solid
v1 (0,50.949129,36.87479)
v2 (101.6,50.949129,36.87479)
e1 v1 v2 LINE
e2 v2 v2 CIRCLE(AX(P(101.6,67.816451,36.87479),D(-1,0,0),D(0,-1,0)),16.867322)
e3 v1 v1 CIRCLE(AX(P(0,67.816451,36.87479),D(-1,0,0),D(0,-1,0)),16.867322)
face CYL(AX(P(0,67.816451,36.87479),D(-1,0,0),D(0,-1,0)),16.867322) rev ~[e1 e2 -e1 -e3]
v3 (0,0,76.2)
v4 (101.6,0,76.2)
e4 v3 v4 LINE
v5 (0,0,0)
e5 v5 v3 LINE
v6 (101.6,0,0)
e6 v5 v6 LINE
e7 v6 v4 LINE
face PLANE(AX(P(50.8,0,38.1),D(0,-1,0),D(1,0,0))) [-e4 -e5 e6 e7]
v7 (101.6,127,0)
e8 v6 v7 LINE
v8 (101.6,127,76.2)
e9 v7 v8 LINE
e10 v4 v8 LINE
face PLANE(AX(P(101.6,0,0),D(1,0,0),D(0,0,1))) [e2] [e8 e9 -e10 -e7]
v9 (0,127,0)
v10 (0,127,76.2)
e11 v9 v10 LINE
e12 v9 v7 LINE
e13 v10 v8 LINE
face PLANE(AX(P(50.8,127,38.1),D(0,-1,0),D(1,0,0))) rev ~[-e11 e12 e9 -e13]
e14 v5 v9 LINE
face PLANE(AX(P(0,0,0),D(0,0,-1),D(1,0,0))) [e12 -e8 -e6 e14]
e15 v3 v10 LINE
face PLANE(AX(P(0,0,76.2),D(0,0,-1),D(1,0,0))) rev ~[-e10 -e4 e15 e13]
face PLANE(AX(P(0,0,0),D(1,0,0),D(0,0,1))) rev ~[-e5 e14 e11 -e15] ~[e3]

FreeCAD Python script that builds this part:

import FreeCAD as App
import Part
import Sketcher
Q = App.Units.Quantity


def add_polygon(sketch, points):
    """Adds a closed chain of lines whose ends are joined by coincident constraints."""
    first, n = sketch.GeometryCount, len(points)
    for a, b in zip(points, points[1:] + points[:1]):
        sketch.addGeometry(Part.LineSegment(App.Vector(*a, 0), App.Vector(*b, 0)), False)
    for i in range(n):
        sketch.addConstraint(Sketcher.Constraint("Coincident", first + i, 2, first + (i + 1) % n, 1))

doc = App.newDocument("Part")
body = doc.addObject("PartDesign::Body", "Body")

# Sketch on XZ plane
sketch1 = body.newObject("Sketcher::SketchObject", "Sketch")
sketch1.AttachmentSupport = (doc.getObject("XZ_Plane"), [""])
sketch1.MapMode = "FlatFace"
add_polygon(sketch1, [(0, 76), (0, 0), (102, 0), (102, 76)])  # lines 0-3
sketch1.addConstraint([
    Sketcher.Constraint("Vertical", 0),
    Sketcher.Constraint("Horizontal", 1),
    Sketcher.Constraint("Vertical", 2),
    Sketcher.Constraint("Horizontal", 3),
    Sketcher.Constraint("Coincident", 0, 2, -1, 1),
    Sketcher.Constraint("DistanceX", 1, 1, 1, 2, Q("4 in")),
    Sketcher.Constraint("DistanceY", 0, 2, 0, 1, Q("3 in")),
])
pad1 = body.newObject("PartDesign::Pad", "Pad")
pad1.Profile = sketch1
pad1.Length = Q("5 in")
pad1.Reversed = True

# Sketch on YZ plane
sketch2 = body.newObject("Sketcher::SketchObject", "Sketch001")
sketch2.AttachmentSupport = (doc.getObject("YZ_Plane"), [""])
sketch2.MapMode = "FlatFace"
sketch2.addGeometry(Part.Circle(App.Vector(68, 37, 0), App.Vector(0, 0, 1), 17), False)
sketch2.addConstraint([
    Sketcher.Constraint("Diameter", 0, 33.734644),
    Sketcher.Constraint("DistanceX", -1, 1, 0, 3, 67.816451),
    Sketcher.Constraint("DistanceY", -1, 1, 0, 3, 36.87479),
])
pocket1 = body.newObject("PartDesign::Pocket", "Pocket")
pocket1.Profile = sketch2
pocket1.Type = "ThroughAll"
pocket1.Reversed = True

doc.recompute()
